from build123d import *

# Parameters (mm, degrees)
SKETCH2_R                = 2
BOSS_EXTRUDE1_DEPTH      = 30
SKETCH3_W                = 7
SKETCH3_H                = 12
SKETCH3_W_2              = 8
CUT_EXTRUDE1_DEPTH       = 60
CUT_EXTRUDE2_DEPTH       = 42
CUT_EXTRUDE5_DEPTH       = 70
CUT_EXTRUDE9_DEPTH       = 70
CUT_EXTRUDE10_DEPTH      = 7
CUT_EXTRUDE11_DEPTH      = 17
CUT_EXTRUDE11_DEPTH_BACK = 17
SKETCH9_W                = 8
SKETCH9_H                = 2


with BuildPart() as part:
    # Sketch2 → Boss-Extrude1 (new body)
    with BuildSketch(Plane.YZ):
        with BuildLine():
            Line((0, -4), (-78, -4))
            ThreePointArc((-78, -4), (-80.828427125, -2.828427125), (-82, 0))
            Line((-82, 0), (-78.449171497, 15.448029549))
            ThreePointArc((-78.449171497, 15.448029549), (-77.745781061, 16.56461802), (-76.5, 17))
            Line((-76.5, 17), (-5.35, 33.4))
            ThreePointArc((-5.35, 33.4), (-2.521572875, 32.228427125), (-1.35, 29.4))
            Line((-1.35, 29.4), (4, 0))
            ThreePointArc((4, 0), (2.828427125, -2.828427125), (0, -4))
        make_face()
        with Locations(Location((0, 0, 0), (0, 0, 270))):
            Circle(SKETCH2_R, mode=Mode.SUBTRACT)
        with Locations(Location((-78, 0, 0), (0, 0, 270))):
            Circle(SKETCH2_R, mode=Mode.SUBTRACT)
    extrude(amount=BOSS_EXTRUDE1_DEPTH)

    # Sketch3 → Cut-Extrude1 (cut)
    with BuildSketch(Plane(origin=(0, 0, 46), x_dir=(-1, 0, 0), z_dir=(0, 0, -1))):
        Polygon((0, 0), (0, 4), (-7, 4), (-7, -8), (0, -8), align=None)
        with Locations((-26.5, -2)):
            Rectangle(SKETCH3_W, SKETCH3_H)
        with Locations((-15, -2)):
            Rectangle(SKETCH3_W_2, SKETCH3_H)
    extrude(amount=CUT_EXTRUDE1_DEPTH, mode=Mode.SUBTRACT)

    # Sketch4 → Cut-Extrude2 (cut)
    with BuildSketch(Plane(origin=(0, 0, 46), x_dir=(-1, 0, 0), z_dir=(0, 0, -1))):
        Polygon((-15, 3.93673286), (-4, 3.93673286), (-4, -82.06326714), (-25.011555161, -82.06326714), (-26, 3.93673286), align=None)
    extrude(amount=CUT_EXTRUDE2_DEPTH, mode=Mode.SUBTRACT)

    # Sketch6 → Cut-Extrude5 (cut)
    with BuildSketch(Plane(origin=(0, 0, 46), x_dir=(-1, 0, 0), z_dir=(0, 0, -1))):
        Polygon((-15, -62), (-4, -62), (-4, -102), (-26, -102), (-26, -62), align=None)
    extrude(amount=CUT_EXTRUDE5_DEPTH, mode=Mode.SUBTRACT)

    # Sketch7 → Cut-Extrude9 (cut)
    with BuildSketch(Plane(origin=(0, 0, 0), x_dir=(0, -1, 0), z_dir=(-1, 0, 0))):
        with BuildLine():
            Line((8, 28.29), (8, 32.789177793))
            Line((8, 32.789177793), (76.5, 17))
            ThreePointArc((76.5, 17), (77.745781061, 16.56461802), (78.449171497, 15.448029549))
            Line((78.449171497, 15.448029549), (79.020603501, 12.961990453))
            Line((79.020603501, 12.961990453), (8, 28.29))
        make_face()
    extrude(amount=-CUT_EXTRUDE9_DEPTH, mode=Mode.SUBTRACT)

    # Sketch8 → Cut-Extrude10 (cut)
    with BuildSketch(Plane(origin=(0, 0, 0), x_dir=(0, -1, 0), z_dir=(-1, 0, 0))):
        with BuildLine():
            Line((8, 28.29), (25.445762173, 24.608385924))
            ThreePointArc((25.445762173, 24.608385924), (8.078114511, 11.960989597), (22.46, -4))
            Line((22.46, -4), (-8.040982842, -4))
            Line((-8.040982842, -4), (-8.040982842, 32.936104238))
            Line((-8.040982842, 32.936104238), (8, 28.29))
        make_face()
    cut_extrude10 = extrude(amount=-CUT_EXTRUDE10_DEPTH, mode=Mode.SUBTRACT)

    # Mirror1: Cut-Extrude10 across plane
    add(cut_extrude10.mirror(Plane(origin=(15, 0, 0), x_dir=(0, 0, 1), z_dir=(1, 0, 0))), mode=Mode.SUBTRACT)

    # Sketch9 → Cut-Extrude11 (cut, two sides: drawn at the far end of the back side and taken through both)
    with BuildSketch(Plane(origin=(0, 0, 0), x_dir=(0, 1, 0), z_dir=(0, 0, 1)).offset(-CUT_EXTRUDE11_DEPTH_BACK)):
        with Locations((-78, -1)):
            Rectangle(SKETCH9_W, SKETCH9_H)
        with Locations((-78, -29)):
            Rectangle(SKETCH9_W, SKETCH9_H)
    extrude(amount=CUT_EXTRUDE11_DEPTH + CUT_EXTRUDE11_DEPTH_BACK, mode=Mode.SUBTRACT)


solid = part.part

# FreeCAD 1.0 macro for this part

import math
import FreeCAD as App
import Part
import Sketcher

V = App.Vector

doc = App.newDocument("Part")
body = doc.addObject("PartDesign::Body", "Body")

sketch1 = body.newObject("Sketcher::SketchObject", "Sketch")
sketch1.AttachmentSupport = (doc.getObject("YZ_Plane"), [""])
sketch1.MapMode = "FlatFace"
sketch1.addGeometry([
    Part.LineSegment(V(-78, -4, 0), V(0, -4, 0)),
    Part.ArcOfCircle(Part.Circle(V(0, 0, 0), V(0, 0, 1), 4), math.radians(-90), math.radians(0)),
    Part.LineSegment(V(4, 0, 0), V(-1.4, 29.4, 0)),
    Part.ArcOfCircle(Part.Circle(V(-5.3, 29.4, 0), V(0, 0, 1), 4), math.radians(0), math.radians(90)),
    Part.LineSegment(V(-5.3, 33.4, 0), V(-76.5, 17, 0)),
    Part.ArcOfCircle(Part.Circle(V(-76.5, 15, 0), V(0, 0, 1), 2), math.radians(90), math.radians(167)),
    Part.LineSegment(V(-78.4, 15.4, 0), V(-82, 0, 0)),
    Part.ArcOfCircle(Part.Circle(V(-78, 0, 0), V(0, 0, 1), 4), math.radians(180), math.radians(270)),
    Part.Circle(V(0, 0, 0), V(0, 0, 1), 2),
    Part.Circle(V(-78, 0, 0), V(0, 0, 1), 2),
], False)
sketch1.addConstraint([
    Sketcher.Constraint("Tangent", 0, 2, 1, 1),
    Sketcher.Constraint("Coincident", 1, 2, 2, 1),
    Sketcher.Constraint("Coincident", 2, 2, 3, 1),
    Sketcher.Constraint("Coincident", 3, 2, 4, 1),
    Sketcher.Constraint("Coincident", 4, 2, 5, 1),
    Sketcher.Constraint("Tangent", 5, 2, 6, 1),
    Sketcher.Constraint("Coincident", 6, 2, 7, 1),
    Sketcher.Constraint("Tangent", 7, 2, 0, 1),
    Sketcher.Constraint("Horizontal", 0),
    Sketcher.Constraint("Coincident", 1, 3, -1, 1),
    Sketcher.Constraint("Coincident", 8, 3, -1, 1),
    Sketcher.Constraint("Coincident", 9, 3, 7, 3),
    Sketcher.Constraint("Equal", 1, 3),
    Sketcher.Constraint("Equal", 3, 7),
    Sketcher.Constraint("Equal", 5, 8),
    Sketcher.Constraint("Equal", 8, 9),
    Sketcher.Constraint("PointOnObject", 1, 2, -1),
    Sketcher.Constraint("PointOnObject", 6, 2, -1),
    Sketcher.Constraint("Horizontal", 3, 3, 2, 2),
    Sketcher.Constraint("Vertical", 5, 3, 4, 2),
    Sketcher.Constraint("Diameter", 8, 4.0),
    Sketcher.Constraint("Radius", 1, 4.0),
    Sketcher.Constraint("DistanceX", 0, 1, 0, 2, 78.0),
    Sketcher.Constraint("DistanceY", -1, 1, 5, 3, 15.0),
    Sketcher.Constraint("DistanceX", 3, 2, 2, 2, 4.0),
    Sketcher.Constraint("DistanceY", -1, 1, 3, 3, 29.4),
    Sketcher.Constraint("DistanceX", 5, 3, -1, 1, 76.5),
    Sketcher.Constraint("DistanceX", 3, 3, -1, 1, 5.35),
])
pad1 = body.newObject("PartDesign::Pad", "Pad")
pad1.Profile = sketch1
pad1.Length = 30

sketch2 = body.newObject("Sketcher::SketchObject", "Sketch001")
sketch2.AttachmentSupport = (doc.getObject("XY_Plane"), [""])
sketch2.MapMode = "FlatFace"
sketch2.AttachmentOffset = App.Placement(V(0, 0, 46), App.Rotation())
sketch2.addGeometry([
    Part.LineSegment(V(0, 4, 0), V(7, 4, 0)),
    Part.LineSegment(V(7, 4, 0), V(7, -8, 0)),
    Part.LineSegment(V(7, -8, 0), V(0, -8, 0)),
    Part.LineSegment(V(0, -8, 0), V(0, 4, 0)),
    Part.LineSegment(V(30, 4, 0), V(30, -8, 0)),
    Part.LineSegment(V(30, -8, 0), V(23, -8, 0)),
    Part.LineSegment(V(23, -8, 0), V(23, 4, 0)),
    Part.LineSegment(V(23, 4, 0), V(30, 4, 0)),
    Part.LineSegment(V(19, 4, 0), V(19, -8, 0)),
    Part.LineSegment(V(19, -8, 0), V(11, -8, 0)),
    Part.LineSegment(V(11, -8, 0), V(11, 4, 0)),
    Part.LineSegment(V(11, 4, 0), V(19, 4, 0)),
], False)
sketch2.addConstraint([
    Sketcher.Constraint("Coincident", 0, 2, 1, 1),
    Sketcher.Constraint("Coincident", 1, 2, 2, 1),
    Sketcher.Constraint("Coincident", 2, 2, 3, 1),
    Sketcher.Constraint("Coincident", 3, 2, 0, 1),
    Sketcher.Constraint("Coincident", 4, 2, 5, 1),
    Sketcher.Constraint("Coincident", 5, 2, 6, 1),
    Sketcher.Constraint("Coincident", 6, 2, 7, 1),
    Sketcher.Constraint("Coincident", 7, 2, 4, 1),
    Sketcher.Constraint("Coincident", 8, 2, 9, 1),
    Sketcher.Constraint("Coincident", 9, 2, 10, 1),
    Sketcher.Constraint("Coincident", 10, 2, 11, 1),
    Sketcher.Constraint("Coincident", 11, 2, 8, 1),
    Sketcher.Constraint("Horizontal", 0),
    Sketcher.Constraint("Vertical", 1),
    Sketcher.Constraint("Horizontal", 2),
    Sketcher.Constraint("Vertical", 3),
    Sketcher.Constraint("Vertical", 4),
    Sketcher.Constraint("Horizontal", 5),
    Sketcher.Constraint("Vertical", 6),
    Sketcher.Constraint("Horizontal", 7),
    Sketcher.Constraint("Vertical", 8),
    Sketcher.Constraint("Horizontal", 9),
    Sketcher.Constraint("Vertical", 10),
    Sketcher.Constraint("Horizontal", 11),
    Sketcher.Constraint("PointOnObject", 2, 2, -2),
    Sketcher.Constraint("Horizontal", 2, 2, 4, 2),
    Sketcher.Constraint("Horizontal", 3, 2, 6, 2),
    Sketcher.Constraint("Horizontal", 5, 2, 8, 2),
    Sketcher.Constraint("Horizontal", 7, 2, 10, 2),
    Sketcher.Constraint("Equal", 2, 5),
    Sketcher.Constraint("DistanceX", 0, 1, 0, 2, 7.0),
    Sketcher.Constraint("DistanceX", 9, 2, 9, 1, 8.0),
    Sketcher.Constraint("DistanceY", 1, 2, 1, 1, 12.0),
    Sketcher.Constraint("DistanceY", -1, 1, 0, 2, 4.0),
    Sketcher.Constraint("DistanceX", -1, 1, 4, 2, 30.0),
    Sketcher.Constraint("DistanceX", -1, 1, 8, 2, 19.0),
])
pocket1 = body.newObject("PartDesign::Pocket", "Pocket")
pocket1.Profile = sketch2
pocket1.Length = 60

sketch3 = body.newObject("Sketcher::SketchObject", "Sketch002")
sketch3.AttachmentSupport = (doc.getObject("XY_Plane"), [""])
sketch3.MapMode = "FlatFace"
sketch3.AttachmentOffset = App.Placement(V(0, 0, 46), App.Rotation())
sketch3.addGeometry([
    Part.LineSegment(V(4, 4, 0), V(26, 4, 0)),
    Part.LineSegment(V(26, 4, 0), V(25, -82, 0)),
    Part.LineSegment(V(25, -82, 0), V(4, -82, 0)),
    Part.LineSegment(V(4, -82, 0), V(4, 4, 0)),
], False)
sketch3.addConstraint([
    Sketcher.Constraint("Coincident", 0, 2, 1, 1),
    Sketcher.Constraint("Coincident", 1, 2, 2, 1),
    Sketcher.Constraint("Coincident", 2, 2, 3, 1),
    Sketcher.Constraint("Coincident", 3, 2, 0, 1),
    Sketcher.Constraint("Horizontal", 0),
    Sketcher.Constraint("Horizontal", 2),
    Sketcher.Constraint("Vertical", 3),
    Sketcher.Constraint("DistanceX", 0, 1, 0, 2, 22.0),
    Sketcher.Constraint("DistanceY", 3, 1, 3, 2, 86.0),
    Sketcher.Constraint("DistanceX", -1, 1, 0, 2, 26.0),
    Sketcher.Constraint("Distance", 1, 86.00568),
    Sketcher.Constraint("DistanceY", -1, 1, 0, 2, 3.936733),
])
pocket2 = body.newObject("PartDesign::Pocket", "Pocket001")
pocket2.Profile = sketch3
pocket2.Length = 42

sketch4 = body.newObject("Sketcher::SketchObject", "Sketch003")
sketch4.AttachmentSupport = (doc.getObject("XY_Plane"), [""])
sketch4.MapMode = "FlatFace"
sketch4.AttachmentOffset = App.Placement(V(0, 0, 46), App.Rotation())
sketch4.addGeometry([
    Part.LineSegment(V(4, -62, 0), V(26, -62, 0)),
    Part.LineSegment(V(26, -62, 0), V(26, -102, 0)),
    Part.LineSegment(V(26, -102, 0), V(4, -102, 0)),
    Part.LineSegment(V(4, -102, 0), V(4, -62, 0)),
], False)
sketch4.addConstraint([
    Sketcher.Constraint("Coincident", 0, 2, 1, 1),
    Sketcher.Constraint("Coincident", 1, 2, 2, 1),
    Sketcher.Constraint("Coincident", 2, 2, 3, 1),
    Sketcher.Constraint("Coincident", 3, 2, 0, 1),
    Sketcher.Constraint("Horizontal", 0),
    Sketcher.Constraint("Vertical", 1),
    Sketcher.Constraint("Horizontal", 2),
    Sketcher.Constraint("Vertical", 3),
    Sketcher.Constraint("DistanceX", 0, 1, 0, 2, 22.0),
    Sketcher.Constraint("DistanceY", 1, 2, 1, 1, 40.0),
    Sketcher.Constraint("DistanceX", -1, 1, 0, 2, 26.0),
    Sketcher.Constraint("DistanceY", 0, 2, -1, 1, 62.0),
])
pocket3 = body.newObject("PartDesign::Pocket", "Pocket002")
pocket3.Profile = sketch4
pocket3.Length = 70

sketch5 = body.newObject("Sketcher::SketchObject", "Sketch004")
sketch5.AttachmentSupport = (doc.getObject("YZ_Plane"), [""])
sketch5.MapMode = "FlatFace"
sketch5.addGeometry([
    Part.LineSegment(V(-8, 32.8, 0), V(-8, 28.3, 0)),
    Part.LineSegment(V(-8, 28.3, 0), V(-79, 13, 0)),
    Part.LineSegment(V(-79, 13, 0), V(-78.4, 15.4, 0)),
    Part.ArcOfCircle(Part.Circle(V(-76.5, 15, 0), V(0, 0, 1), 2), math.radians(90), math.radians(167)),
    Part.LineSegment(V(-76.5, 17, 0), V(-8, 32.8, 0)),
], False)
sketch5.addConstraint([
    Sketcher.Constraint("Coincident", 0, 2, 1, 1),
    Sketcher.Constraint("Coincident", 1, 2, 2, 1),
    Sketcher.Constraint("Tangent", 2, 2, 3, 2),
    Sketcher.Constraint("Coincident", 3, 1, 4, 1),
    Sketcher.Constraint("Coincident", 4, 2, 0, 1),
    Sketcher.Constraint("Vertical", 0),
    Sketcher.Constraint("Radius", 3, 2.0),
    Sketcher.Constraint("DistanceY", -1, 1, 3, 3, 15.0),
    Sketcher.Constraint("DistanceX", 0, 2, -1, 1, 8.0),
    Sketcher.Constraint("DistanceX", 3, 3, -1, 1, 76.5),
    Sketcher.Constraint("DistanceX", 3, 1, -1, 1, 76.5),
    Sketcher.Constraint("DistanceY", -1, 1, 0, 2, 28.29),
    Sketcher.Constraint("Distance", 1, 72.65586),
    Sketcher.Constraint("DistanceY", 0, 2, 0, 1, 4.499178),
    Sketcher.Constraint("DistanceY", -1, 1, 1, 2, 12.96199),
])
pocket4 = body.newObject("PartDesign::Pocket", "Pocket003")
pocket4.Profile = sketch5
pocket4.Length = 70
pocket4.Reversed = True

sketch6 = body.newObject("Sketcher::SketchObject", "Sketch005")
sketch6.AttachmentSupport = (doc.getObject("YZ_Plane"), [""])
sketch6.MapMode = "FlatFace"
sketch6.addGeometry([
    Part.LineSegment(V(-25, 25, 0), V(-8, 28, 0)),
    Part.LineSegment(V(-8, 28, 0), V(8, 33, 0)),
    Part.LineSegment(V(8, 33, 0), V(8, -4, 0)),
    Part.LineSegment(V(8, -4, 0), V(-22, -4, 0)),
    Part.ArcOfCircle(Part.Circle(V(-22, 10, 0), V(0, 0, 1), 14), math.radians(-90), math.radians(102)),
], False)
sketch6.addConstraint([
    Sketcher.Constraint("Coincident", 0, 2, 1, 1),
    Sketcher.Constraint("Coincident", 1, 2, 2, 1),
    Sketcher.Constraint("Coincident", 2, 2, 3, 1),
    Sketcher.Constraint("Tangent", 3, 2, 4, 1),
    Sketcher.Constraint("Tangent", 4, 2, 0, 1),
    Sketcher.Constraint("Vertical", 2),
    Sketcher.Constraint("Horizontal", 3),
    Sketcher.Constraint("Radius", 4, 14.46),
    Sketcher.Constraint("DistanceX", 0, 2, -1, 1, 8.0),
    Sketcher.Constraint("DistanceY", 2, 2, -1, 1, 4.0),
    Sketcher.Constraint("Distance", 0, 17.83),
    Sketcher.Constraint("DistanceX", 4, 3, -1, 1, 22.46),
    Sketcher.Constraint("Distance", 1, 16.700282),
    Sketcher.Constraint("DistanceX", 3, 2, 3, 1, 30.500983),
])
pocket5 = body.newObject("PartDesign::Pocket", "Pocket004")
pocket5.Profile = sketch6
pocket5.Length = 7
pocket5.Reversed = True
doc.recompute()

datumplane = body.newObject("PartDesign::Plane", "DatumPlane")
datumplane.AttachmentSupport = (doc.getObject("YZ_Plane"), [""])
datumplane.MapMode = "FlatFace"
datumplane.AttachmentOffset = App.Placement(V(0, 0, 15), App.Rotation())
mirrored = body.newObject("PartDesign::Mirrored", "Mirrored")
mirrored.Originals = [pocket5]
mirrored.MirrorPlane = (datumplane, [""])
body.Tip = mirrored

sketch7 = body.newObject("Sketcher::SketchObject", "Sketch006")
sketch7.AttachmentSupport = (doc.getObject("XY_Plane"), [""])
sketch7.MapMode = "FlatFace"
sketch7.addGeometry([
    Part.LineSegment(V(0, -82, 0), V(2, -82, 0)),
    Part.LineSegment(V(2, -82, 0), V(2, -74, 0)),
    Part.LineSegment(V(2, -74, 0), V(0, -74, 0)),
    Part.LineSegment(V(0, -74, 0), V(0, -82, 0)),
    Part.LineSegment(V(28, -82, 0), V(30, -82, 0)),
    Part.LineSegment(V(30, -82, 0), V(30, -74, 0)),
    Part.LineSegment(V(30, -74, 0), V(28, -74, 0)),
    Part.LineSegment(V(28, -74, 0), V(28, -82, 0)),
], False)
sketch7.addConstraint([
    Sketcher.Constraint("Coincident", 0, 2, 1, 1),
    Sketcher.Constraint("Coincident", 1, 2, 2, 1),
    Sketcher.Constraint("Coincident", 2, 2, 3, 1),
    Sketcher.Constraint("Coincident", 3, 2, 0, 1),
    Sketcher.Constraint("Coincident", 4, 2, 5, 1),
    Sketcher.Constraint("Coincident", 5, 2, 6, 1),
    Sketcher.Constraint("Coincident", 6, 2, 7, 1),
    Sketcher.Constraint("Coincident", 7, 2, 4, 1),
    Sketcher.Constraint("Horizontal", 0),
    Sketcher.Constraint("Vertical", 1),
    Sketcher.Constraint("Horizontal", 2),
    Sketcher.Constraint("Vertical", 3),
    Sketcher.Constraint("Horizontal", 4),
    Sketcher.Constraint("Vertical", 5),
    Sketcher.Constraint("Horizontal", 6),
    Sketcher.Constraint("Vertical", 7),
    Sketcher.Constraint("PointOnObject", 2, 2, -2),
    Sketcher.Constraint("Horizontal", 3, 2, 4, 2),
    Sketcher.Constraint("Horizontal", 2, 2, 5, 2),
    Sketcher.Constraint("Equal", 2, 4),
    Sketcher.Constraint("DistanceX", 0, 1, 0, 2, 2.0),
    Sketcher.Constraint("DistanceY", 1, 1, 1, 2, 8.0),
    Sketcher.Constraint("DistanceY", 0, 2, -1, 1, 82.0),
    Sketcher.Constraint("DistanceX", -1, 1, 4, 2, 30.0),
])
pocket6 = body.newObject("PartDesign::Pocket", "Pocket005")
pocket6.Profile = sketch7
pocket6.Type = "ThroughAll"
pocket6.Midplane = True

doc.recompute()
